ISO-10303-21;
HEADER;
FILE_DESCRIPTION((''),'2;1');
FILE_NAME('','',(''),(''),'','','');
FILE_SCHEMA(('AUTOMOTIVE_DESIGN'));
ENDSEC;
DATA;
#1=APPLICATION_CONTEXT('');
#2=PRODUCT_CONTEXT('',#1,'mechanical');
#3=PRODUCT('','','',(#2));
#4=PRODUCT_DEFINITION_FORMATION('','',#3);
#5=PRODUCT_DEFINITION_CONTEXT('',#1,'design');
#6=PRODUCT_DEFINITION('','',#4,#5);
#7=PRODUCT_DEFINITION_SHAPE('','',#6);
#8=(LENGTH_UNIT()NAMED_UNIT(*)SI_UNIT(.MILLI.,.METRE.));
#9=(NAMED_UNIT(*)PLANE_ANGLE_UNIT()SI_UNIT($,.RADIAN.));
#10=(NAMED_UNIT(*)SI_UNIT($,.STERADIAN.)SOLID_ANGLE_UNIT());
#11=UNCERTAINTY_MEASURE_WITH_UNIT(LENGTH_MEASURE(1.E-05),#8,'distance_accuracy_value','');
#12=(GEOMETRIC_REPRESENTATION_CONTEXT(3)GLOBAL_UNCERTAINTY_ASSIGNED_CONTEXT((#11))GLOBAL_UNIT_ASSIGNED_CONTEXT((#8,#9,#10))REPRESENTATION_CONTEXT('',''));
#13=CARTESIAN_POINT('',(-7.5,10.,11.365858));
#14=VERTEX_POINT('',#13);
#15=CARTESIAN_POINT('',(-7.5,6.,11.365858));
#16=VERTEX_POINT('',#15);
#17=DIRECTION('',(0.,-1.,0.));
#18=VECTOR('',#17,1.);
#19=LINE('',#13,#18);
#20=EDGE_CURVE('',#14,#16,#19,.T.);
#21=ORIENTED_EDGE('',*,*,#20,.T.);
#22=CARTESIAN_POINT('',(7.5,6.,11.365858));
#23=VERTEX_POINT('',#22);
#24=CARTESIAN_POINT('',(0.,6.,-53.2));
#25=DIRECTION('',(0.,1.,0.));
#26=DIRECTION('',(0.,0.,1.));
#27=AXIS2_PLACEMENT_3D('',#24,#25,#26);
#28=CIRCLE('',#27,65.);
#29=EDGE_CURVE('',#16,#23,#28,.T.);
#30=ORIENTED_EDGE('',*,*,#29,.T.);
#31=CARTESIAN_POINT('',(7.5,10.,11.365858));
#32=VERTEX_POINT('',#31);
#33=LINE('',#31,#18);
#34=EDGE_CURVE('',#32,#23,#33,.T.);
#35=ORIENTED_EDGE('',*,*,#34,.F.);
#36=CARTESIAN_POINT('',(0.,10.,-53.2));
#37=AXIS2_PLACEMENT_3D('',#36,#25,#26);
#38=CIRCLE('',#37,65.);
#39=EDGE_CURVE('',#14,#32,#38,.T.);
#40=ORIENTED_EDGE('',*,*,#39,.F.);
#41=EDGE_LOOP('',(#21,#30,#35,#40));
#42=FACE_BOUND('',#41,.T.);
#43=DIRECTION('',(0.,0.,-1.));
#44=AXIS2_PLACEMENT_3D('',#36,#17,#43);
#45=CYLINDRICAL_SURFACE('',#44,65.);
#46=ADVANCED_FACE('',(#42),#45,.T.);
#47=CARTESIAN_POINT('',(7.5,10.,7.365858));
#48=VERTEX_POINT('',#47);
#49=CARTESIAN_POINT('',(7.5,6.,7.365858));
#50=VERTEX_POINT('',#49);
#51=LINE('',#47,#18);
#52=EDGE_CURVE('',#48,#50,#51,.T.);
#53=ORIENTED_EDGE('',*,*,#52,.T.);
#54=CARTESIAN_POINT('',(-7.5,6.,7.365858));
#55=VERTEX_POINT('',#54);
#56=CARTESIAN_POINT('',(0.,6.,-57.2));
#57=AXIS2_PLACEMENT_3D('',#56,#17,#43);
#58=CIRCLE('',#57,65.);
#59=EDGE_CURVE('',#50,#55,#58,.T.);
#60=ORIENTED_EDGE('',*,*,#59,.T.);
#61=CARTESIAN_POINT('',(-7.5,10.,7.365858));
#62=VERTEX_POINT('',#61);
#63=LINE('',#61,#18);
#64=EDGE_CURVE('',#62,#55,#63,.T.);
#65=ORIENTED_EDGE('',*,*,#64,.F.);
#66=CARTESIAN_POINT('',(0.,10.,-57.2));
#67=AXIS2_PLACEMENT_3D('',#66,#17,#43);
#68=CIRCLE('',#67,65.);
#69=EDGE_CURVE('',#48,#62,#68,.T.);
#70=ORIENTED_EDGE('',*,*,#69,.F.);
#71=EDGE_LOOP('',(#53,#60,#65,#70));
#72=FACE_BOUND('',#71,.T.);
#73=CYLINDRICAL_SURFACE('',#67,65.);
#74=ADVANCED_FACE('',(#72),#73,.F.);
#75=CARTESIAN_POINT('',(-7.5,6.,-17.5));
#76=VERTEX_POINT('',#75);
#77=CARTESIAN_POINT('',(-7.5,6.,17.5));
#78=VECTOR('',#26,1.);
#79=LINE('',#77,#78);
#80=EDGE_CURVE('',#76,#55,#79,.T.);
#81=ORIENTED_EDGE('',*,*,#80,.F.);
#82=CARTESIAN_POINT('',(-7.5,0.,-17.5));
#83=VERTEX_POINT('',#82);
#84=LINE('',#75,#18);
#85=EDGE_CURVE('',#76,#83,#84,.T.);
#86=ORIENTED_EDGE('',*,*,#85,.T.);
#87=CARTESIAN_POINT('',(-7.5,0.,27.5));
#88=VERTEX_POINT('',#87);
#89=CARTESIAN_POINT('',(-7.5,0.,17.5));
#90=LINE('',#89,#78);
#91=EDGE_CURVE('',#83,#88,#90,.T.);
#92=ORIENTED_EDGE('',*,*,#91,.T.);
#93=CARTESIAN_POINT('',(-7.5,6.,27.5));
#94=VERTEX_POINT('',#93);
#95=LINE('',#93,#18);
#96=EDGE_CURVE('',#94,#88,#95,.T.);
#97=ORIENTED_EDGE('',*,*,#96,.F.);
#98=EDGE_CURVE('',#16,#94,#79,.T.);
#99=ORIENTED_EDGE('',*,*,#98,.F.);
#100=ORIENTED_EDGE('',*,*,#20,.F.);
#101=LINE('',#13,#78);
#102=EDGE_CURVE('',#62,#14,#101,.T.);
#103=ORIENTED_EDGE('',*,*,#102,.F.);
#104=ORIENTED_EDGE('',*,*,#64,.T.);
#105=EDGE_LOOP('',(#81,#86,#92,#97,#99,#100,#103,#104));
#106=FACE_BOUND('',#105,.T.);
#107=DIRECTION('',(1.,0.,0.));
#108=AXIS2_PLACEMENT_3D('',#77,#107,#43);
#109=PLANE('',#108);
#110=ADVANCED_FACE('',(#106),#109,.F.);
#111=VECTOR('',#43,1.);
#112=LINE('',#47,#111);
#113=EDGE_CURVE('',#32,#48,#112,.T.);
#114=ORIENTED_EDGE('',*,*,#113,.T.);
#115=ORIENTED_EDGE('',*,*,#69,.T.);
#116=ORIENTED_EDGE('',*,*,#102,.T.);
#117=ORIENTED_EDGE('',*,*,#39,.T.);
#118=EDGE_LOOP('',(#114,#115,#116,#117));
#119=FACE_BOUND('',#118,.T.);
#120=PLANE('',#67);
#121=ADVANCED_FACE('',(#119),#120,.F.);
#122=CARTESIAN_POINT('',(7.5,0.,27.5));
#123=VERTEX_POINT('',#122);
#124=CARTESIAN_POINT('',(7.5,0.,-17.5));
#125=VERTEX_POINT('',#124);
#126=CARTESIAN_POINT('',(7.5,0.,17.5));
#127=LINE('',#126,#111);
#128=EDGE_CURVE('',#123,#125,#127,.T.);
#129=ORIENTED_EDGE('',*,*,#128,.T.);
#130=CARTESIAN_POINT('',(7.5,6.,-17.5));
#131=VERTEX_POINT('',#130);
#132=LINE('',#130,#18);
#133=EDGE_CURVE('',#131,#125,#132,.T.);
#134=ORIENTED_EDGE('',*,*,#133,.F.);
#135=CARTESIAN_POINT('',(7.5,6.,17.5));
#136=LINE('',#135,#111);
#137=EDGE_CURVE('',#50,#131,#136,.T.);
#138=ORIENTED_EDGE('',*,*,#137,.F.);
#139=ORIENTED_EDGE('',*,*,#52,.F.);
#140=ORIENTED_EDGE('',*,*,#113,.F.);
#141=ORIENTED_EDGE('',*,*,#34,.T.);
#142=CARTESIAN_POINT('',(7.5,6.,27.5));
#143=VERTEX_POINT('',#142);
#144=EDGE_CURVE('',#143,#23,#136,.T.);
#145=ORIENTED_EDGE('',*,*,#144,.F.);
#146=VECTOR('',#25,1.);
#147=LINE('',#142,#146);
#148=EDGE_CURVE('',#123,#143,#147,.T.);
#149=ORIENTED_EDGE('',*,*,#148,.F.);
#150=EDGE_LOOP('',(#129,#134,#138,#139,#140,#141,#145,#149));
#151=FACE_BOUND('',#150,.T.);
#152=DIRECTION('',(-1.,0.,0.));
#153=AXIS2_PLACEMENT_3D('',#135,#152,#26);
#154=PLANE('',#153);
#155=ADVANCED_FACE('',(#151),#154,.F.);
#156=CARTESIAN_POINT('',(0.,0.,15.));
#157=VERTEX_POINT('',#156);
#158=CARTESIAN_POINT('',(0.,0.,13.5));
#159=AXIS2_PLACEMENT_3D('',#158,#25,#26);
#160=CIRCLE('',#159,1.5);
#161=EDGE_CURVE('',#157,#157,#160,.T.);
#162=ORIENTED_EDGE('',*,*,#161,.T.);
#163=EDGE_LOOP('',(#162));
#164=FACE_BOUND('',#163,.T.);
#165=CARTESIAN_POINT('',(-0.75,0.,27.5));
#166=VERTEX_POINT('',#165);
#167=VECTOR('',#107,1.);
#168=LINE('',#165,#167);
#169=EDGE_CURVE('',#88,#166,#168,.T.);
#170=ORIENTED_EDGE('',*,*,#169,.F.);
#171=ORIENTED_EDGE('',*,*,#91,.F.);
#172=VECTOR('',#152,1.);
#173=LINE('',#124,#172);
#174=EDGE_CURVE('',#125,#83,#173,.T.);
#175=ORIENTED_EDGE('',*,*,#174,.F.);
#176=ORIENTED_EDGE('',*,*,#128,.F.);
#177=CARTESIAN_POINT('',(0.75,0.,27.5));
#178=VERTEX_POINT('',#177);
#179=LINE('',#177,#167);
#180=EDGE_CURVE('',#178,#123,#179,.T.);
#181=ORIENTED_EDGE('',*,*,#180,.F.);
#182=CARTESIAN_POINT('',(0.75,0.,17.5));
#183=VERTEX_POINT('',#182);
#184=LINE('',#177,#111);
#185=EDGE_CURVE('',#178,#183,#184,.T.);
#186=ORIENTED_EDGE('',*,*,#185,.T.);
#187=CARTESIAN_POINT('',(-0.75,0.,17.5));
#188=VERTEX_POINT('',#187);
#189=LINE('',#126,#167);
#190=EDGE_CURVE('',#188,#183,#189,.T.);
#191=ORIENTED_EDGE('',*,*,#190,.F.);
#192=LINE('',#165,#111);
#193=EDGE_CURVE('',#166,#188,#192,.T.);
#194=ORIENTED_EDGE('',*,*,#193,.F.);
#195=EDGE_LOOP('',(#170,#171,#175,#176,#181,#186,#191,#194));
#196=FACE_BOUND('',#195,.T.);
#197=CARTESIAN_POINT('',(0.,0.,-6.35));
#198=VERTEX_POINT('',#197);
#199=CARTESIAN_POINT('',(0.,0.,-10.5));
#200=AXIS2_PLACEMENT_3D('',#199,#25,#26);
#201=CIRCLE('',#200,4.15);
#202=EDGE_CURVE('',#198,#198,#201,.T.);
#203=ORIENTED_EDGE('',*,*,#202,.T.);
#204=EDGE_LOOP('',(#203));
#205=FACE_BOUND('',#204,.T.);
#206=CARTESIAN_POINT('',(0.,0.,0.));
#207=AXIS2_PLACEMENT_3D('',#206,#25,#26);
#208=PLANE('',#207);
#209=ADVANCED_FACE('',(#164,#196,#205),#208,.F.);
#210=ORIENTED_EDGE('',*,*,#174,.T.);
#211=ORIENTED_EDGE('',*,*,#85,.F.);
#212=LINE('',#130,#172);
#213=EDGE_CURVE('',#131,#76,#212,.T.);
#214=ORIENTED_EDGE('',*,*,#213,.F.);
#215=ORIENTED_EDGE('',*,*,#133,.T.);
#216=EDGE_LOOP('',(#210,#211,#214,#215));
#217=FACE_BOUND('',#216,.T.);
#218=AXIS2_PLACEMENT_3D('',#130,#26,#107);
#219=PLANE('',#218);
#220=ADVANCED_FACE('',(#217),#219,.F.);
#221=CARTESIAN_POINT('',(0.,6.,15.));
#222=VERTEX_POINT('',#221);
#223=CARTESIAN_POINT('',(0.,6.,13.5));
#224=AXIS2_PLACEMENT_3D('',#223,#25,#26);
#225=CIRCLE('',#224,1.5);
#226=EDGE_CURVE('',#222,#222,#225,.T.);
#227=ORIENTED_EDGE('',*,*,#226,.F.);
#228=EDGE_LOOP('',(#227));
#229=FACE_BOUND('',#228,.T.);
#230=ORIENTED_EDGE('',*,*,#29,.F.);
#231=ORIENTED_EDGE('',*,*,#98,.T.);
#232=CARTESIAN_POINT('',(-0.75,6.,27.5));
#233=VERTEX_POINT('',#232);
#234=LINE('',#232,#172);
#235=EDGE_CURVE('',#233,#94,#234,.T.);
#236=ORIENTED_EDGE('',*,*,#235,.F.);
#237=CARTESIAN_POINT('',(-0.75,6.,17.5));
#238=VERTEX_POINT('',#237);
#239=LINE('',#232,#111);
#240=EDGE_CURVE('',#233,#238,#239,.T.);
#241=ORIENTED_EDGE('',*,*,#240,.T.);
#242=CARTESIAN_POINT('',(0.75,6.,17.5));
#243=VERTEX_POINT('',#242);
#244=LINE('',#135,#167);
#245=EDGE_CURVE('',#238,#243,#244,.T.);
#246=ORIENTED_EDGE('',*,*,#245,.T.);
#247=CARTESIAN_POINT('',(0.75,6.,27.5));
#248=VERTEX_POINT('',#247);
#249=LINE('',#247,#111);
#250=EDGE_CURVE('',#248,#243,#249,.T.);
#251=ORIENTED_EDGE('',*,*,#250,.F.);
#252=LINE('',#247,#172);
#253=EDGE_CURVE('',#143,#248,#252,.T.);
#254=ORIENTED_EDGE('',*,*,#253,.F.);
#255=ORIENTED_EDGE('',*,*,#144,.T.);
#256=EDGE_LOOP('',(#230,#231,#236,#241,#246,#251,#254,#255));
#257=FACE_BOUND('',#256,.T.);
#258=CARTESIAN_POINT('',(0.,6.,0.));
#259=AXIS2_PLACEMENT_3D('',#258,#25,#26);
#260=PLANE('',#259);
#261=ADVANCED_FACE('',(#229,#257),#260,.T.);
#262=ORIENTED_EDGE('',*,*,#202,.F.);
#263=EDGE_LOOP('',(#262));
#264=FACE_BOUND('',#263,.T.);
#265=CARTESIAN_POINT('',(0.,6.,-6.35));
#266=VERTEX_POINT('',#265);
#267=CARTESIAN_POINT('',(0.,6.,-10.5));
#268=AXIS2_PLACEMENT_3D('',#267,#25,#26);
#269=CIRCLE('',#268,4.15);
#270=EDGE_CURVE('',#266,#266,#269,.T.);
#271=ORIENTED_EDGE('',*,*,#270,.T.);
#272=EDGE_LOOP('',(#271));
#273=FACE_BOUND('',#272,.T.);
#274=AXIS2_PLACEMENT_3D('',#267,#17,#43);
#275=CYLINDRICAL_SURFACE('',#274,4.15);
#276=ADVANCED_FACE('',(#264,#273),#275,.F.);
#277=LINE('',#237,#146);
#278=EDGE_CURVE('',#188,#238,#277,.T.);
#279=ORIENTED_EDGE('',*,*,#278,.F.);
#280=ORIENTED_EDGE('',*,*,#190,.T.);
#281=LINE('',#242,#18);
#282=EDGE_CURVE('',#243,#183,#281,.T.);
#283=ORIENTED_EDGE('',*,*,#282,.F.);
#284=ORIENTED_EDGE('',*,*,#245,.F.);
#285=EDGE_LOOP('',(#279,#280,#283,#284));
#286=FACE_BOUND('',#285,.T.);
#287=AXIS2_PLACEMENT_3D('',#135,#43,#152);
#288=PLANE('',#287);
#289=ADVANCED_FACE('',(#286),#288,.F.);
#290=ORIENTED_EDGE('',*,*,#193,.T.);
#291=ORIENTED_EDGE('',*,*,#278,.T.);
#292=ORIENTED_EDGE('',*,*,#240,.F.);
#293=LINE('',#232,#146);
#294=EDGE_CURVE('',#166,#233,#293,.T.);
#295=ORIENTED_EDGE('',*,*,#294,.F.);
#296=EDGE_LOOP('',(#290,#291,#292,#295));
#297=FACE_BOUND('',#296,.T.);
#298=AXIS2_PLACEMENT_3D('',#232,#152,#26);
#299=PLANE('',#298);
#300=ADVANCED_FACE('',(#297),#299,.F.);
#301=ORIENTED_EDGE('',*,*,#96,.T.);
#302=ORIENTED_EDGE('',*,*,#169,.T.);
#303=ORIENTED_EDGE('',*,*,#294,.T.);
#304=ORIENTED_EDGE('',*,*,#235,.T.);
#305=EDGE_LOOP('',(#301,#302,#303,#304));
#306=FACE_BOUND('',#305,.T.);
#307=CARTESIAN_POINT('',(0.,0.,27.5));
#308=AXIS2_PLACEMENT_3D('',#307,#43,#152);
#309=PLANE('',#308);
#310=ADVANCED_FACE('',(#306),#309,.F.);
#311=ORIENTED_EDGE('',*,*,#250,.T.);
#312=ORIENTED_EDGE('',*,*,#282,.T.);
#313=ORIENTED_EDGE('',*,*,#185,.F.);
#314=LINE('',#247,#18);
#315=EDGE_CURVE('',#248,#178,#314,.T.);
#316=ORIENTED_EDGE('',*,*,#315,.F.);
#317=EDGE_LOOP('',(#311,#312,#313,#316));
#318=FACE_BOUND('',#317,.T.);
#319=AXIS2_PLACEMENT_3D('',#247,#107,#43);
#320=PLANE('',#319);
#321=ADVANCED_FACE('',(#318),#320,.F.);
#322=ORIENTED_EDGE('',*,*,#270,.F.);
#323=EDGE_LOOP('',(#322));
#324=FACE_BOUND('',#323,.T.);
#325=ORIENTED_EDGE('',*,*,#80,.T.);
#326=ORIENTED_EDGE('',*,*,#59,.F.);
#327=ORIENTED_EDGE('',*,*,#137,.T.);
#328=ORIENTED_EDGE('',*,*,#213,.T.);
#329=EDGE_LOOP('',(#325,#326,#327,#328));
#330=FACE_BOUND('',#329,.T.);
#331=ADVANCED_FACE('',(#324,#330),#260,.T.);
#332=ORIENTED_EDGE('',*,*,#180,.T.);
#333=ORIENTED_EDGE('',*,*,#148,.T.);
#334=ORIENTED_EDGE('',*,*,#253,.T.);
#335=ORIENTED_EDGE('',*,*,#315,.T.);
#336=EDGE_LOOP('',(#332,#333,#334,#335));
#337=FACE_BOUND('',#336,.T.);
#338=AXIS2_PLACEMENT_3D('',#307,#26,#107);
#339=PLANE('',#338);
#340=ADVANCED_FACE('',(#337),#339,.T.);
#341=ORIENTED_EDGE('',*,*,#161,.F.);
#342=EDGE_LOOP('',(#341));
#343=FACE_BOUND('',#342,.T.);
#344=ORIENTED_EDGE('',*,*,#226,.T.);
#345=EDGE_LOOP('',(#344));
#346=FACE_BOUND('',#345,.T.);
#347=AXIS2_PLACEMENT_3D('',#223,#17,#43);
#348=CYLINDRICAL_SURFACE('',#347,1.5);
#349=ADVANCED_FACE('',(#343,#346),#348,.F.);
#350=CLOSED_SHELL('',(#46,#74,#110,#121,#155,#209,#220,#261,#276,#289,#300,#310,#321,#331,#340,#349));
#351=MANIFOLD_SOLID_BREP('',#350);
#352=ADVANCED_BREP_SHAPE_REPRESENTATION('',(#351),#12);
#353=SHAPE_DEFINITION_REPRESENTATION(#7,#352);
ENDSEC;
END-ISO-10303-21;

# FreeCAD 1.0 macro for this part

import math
import FreeCAD as App
import Part
import Sketcher


def add_polygon(sketch, points):
    """Adds a closed chain of lines whose ends are joined by coincident constraints."""
    first, n = sketch.GeometryCount, len(points)
    for a, b in zip(points, points[1:] + points[:1]):
        sketch.addGeometry(Part.LineSegment(App.Vector(*a, 0), App.Vector(*b, 0)), False)
    for i in range(n):
        sketch.addConstraint(Sketcher.Constraint("Coincident", first + i, 2, first + (i + 1) % n, 1))

doc = App.newDocument("Part")
body = doc.addObject("PartDesign::Body", "Body")

sketch1 = doc.addObject("Sketcher::SketchObject", "Sketch")
body.addObject(sketch1)
sketch1.AttachmentSupport = (doc.XZ_Plane, [""])
sketch1.MapMode = "FlatFace"
add_polygon(sketch1, [(-7.5, -17.5), (-7.5, 17.5), (7.5, 17.5), (7.5, -17.5)])
sketch1.addGeometry(Part.Circle(App.Vector(0, 13.5, 0), App.Vector(0, 0, 1), 1.5), False)
sketch1.addGeometry(Part.Circle(App.Vector(0, -10.5, 0), App.Vector(0, 0, 1), 4.2), False)
sketch1.addConstraint([
    Sketcher.Constraint("Vertical", 0),
    Sketcher.Constraint("Horizontal", 1),
    Sketcher.Constraint("Vertical", 2),
    Sketcher.Constraint("Horizontal", 3),
    Sketcher.Constraint("Symmetric", 0, 2, 2, 2, -1, 1),
    Sketcher.Constraint("PointOnObject", 4, 3, -2),
    Sketcher.Constraint("PointOnObject", 5, 3, -2),
    Sketcher.Constraint("Diameter", 4, 3.0),
    Sketcher.Constraint("Diameter", 5, 8.3),
    Sketcher.Constraint("DistanceX", 1, 1, 1, 2, 15.0),
    Sketcher.Constraint("DistanceY", 0, 1, 0, 2, 35.0),
    Sketcher.Constraint("DistanceY", 5, 3, 4, 3, 24.0),
    Sketcher.Constraint("DistanceY", 4, 3, 0, 2, 4.0),
])
pad1 = doc.addObject("PartDesign::Pad", "Pad")
body.addObject(pad1)
pad1.Profile = sketch1
pad1.Length = 6
pad1.Reversed = True

sketch2 = doc.addObject("Sketcher::SketchObject", "Sketch001")
body.addObject(sketch2)
sketch2.AttachmentSupport = (doc.XZ_Plane, [""])
sketch2.MapMode = "FlatFace"
sketch2.AttachmentOffset = App.Placement(App.Vector(0, 0, -6), App.Rotation())
sketch2.addGeometry([
    Part.LineSegment(App.Vector(-7.5, 7.4, 0), App.Vector(-7.5, 11.4, 0)),
    Part.ArcOfCircle(Part.Circle(App.Vector(0, -53.2, 0), App.Vector(0, 0, 1), 65), math.radians(83.37), math.radians(96.63)),
    Part.LineSegment(App.Vector(7.5, 11.4, 0), App.Vector(7.5, 7.4, 0)),
    Part.ArcOfCircle(Part.Circle(App.Vector(0, -57.2, 0), App.Vector(0, 0, 1), 65), math.radians(83.37), math.radians(96.63)),
], False)
sketch2.addConstraint([
    Sketcher.Constraint("Coincident", 0, 2, 1, 2),
    Sketcher.Constraint("Coincident", 1, 1, 2, 1),
    Sketcher.Constraint("Coincident", 2, 2, 3, 1),
    Sketcher.Constraint("Coincident", 3, 2, 0, 1),
    Sketcher.Constraint("Vertical", 0),
    Sketcher.Constraint("Vertical", 2),
    Sketcher.Constraint("Equal", 1, 3),
    Sketcher.Constraint("Symmetric", 0, 2, 1, 1, -2),
    Sketcher.Constraint("PointOnObject", 3, 3, -2),
    Sketcher.Constraint("Radius", 1, 65.0),
    Sketcher.Constraint("DistanceY", 0, 1, 0, 2, 4.0),
    Sketcher.Constraint("DistanceX", 0, 2, 1, 1, 15.0),
    Sketcher.Constraint("DistanceY", 1, 3, -1, 1, 53.2),
])
pad2 = doc.addObject("PartDesign::Pad", "Pad001")
body.addObject(pad2)
pad2.Profile = sketch2
pad2.Length = 4
pad2.Reversed = True

sketch3 = doc.addObject("Sketcher::SketchObject", "Sketch002")
body.addObject(sketch3)
sketch3.AttachmentSupport = (doc.XY_Plane, [""])
sketch3.MapMode = "FlatFace"
sketch3.AttachmentOffset = App.Placement(App.Vector(0, 0, 17.5), App.Rotation())
add_polygon(sketch3, [(1, 6), (1, 0), (8, 0), (8, 6)])
add_polygon(sketch3, [(-8, 6), (-8, 0), (-1, 0), (-1, 6)])
sketch3.addConstraint([
    Sketcher.Constraint("Vertical", 0),
    Sketcher.Constraint("Horizontal", 1),
    Sketcher.Constraint("Vertical", 2),
    Sketcher.Constraint("Horizontal", 3),
    Sketcher.Constraint("Vertical", 4),
    Sketcher.Constraint("Horizontal", 5),
    Sketcher.Constraint("Vertical", 6),
    Sketcher.Constraint("Horizontal", 7),
    Sketcher.Constraint("Symmetric", 1, 2, 4, 2, -1, 1),
    Sketcher.Constraint("Symmetric", 0, 2, 5, 2, -2),
    Sketcher.Constraint("Horizontal", 3, 2, 6, 2),
    Sketcher.Constraint("DistanceY", 0, 2, 0, 1, 6.0),
    Sketcher.Constraint("DistanceX", 4, 2, 1, 2, 15.0),
    Sketcher.Constraint("DistanceX", 1, 1, 1, 2, 6.75),
])
pad3 = doc.addObject("PartDesign::Pad", "Pad002")
body.addObject(pad3)
pad3.Profile = sketch3
pad3.Length = 10

doc.recompute()
